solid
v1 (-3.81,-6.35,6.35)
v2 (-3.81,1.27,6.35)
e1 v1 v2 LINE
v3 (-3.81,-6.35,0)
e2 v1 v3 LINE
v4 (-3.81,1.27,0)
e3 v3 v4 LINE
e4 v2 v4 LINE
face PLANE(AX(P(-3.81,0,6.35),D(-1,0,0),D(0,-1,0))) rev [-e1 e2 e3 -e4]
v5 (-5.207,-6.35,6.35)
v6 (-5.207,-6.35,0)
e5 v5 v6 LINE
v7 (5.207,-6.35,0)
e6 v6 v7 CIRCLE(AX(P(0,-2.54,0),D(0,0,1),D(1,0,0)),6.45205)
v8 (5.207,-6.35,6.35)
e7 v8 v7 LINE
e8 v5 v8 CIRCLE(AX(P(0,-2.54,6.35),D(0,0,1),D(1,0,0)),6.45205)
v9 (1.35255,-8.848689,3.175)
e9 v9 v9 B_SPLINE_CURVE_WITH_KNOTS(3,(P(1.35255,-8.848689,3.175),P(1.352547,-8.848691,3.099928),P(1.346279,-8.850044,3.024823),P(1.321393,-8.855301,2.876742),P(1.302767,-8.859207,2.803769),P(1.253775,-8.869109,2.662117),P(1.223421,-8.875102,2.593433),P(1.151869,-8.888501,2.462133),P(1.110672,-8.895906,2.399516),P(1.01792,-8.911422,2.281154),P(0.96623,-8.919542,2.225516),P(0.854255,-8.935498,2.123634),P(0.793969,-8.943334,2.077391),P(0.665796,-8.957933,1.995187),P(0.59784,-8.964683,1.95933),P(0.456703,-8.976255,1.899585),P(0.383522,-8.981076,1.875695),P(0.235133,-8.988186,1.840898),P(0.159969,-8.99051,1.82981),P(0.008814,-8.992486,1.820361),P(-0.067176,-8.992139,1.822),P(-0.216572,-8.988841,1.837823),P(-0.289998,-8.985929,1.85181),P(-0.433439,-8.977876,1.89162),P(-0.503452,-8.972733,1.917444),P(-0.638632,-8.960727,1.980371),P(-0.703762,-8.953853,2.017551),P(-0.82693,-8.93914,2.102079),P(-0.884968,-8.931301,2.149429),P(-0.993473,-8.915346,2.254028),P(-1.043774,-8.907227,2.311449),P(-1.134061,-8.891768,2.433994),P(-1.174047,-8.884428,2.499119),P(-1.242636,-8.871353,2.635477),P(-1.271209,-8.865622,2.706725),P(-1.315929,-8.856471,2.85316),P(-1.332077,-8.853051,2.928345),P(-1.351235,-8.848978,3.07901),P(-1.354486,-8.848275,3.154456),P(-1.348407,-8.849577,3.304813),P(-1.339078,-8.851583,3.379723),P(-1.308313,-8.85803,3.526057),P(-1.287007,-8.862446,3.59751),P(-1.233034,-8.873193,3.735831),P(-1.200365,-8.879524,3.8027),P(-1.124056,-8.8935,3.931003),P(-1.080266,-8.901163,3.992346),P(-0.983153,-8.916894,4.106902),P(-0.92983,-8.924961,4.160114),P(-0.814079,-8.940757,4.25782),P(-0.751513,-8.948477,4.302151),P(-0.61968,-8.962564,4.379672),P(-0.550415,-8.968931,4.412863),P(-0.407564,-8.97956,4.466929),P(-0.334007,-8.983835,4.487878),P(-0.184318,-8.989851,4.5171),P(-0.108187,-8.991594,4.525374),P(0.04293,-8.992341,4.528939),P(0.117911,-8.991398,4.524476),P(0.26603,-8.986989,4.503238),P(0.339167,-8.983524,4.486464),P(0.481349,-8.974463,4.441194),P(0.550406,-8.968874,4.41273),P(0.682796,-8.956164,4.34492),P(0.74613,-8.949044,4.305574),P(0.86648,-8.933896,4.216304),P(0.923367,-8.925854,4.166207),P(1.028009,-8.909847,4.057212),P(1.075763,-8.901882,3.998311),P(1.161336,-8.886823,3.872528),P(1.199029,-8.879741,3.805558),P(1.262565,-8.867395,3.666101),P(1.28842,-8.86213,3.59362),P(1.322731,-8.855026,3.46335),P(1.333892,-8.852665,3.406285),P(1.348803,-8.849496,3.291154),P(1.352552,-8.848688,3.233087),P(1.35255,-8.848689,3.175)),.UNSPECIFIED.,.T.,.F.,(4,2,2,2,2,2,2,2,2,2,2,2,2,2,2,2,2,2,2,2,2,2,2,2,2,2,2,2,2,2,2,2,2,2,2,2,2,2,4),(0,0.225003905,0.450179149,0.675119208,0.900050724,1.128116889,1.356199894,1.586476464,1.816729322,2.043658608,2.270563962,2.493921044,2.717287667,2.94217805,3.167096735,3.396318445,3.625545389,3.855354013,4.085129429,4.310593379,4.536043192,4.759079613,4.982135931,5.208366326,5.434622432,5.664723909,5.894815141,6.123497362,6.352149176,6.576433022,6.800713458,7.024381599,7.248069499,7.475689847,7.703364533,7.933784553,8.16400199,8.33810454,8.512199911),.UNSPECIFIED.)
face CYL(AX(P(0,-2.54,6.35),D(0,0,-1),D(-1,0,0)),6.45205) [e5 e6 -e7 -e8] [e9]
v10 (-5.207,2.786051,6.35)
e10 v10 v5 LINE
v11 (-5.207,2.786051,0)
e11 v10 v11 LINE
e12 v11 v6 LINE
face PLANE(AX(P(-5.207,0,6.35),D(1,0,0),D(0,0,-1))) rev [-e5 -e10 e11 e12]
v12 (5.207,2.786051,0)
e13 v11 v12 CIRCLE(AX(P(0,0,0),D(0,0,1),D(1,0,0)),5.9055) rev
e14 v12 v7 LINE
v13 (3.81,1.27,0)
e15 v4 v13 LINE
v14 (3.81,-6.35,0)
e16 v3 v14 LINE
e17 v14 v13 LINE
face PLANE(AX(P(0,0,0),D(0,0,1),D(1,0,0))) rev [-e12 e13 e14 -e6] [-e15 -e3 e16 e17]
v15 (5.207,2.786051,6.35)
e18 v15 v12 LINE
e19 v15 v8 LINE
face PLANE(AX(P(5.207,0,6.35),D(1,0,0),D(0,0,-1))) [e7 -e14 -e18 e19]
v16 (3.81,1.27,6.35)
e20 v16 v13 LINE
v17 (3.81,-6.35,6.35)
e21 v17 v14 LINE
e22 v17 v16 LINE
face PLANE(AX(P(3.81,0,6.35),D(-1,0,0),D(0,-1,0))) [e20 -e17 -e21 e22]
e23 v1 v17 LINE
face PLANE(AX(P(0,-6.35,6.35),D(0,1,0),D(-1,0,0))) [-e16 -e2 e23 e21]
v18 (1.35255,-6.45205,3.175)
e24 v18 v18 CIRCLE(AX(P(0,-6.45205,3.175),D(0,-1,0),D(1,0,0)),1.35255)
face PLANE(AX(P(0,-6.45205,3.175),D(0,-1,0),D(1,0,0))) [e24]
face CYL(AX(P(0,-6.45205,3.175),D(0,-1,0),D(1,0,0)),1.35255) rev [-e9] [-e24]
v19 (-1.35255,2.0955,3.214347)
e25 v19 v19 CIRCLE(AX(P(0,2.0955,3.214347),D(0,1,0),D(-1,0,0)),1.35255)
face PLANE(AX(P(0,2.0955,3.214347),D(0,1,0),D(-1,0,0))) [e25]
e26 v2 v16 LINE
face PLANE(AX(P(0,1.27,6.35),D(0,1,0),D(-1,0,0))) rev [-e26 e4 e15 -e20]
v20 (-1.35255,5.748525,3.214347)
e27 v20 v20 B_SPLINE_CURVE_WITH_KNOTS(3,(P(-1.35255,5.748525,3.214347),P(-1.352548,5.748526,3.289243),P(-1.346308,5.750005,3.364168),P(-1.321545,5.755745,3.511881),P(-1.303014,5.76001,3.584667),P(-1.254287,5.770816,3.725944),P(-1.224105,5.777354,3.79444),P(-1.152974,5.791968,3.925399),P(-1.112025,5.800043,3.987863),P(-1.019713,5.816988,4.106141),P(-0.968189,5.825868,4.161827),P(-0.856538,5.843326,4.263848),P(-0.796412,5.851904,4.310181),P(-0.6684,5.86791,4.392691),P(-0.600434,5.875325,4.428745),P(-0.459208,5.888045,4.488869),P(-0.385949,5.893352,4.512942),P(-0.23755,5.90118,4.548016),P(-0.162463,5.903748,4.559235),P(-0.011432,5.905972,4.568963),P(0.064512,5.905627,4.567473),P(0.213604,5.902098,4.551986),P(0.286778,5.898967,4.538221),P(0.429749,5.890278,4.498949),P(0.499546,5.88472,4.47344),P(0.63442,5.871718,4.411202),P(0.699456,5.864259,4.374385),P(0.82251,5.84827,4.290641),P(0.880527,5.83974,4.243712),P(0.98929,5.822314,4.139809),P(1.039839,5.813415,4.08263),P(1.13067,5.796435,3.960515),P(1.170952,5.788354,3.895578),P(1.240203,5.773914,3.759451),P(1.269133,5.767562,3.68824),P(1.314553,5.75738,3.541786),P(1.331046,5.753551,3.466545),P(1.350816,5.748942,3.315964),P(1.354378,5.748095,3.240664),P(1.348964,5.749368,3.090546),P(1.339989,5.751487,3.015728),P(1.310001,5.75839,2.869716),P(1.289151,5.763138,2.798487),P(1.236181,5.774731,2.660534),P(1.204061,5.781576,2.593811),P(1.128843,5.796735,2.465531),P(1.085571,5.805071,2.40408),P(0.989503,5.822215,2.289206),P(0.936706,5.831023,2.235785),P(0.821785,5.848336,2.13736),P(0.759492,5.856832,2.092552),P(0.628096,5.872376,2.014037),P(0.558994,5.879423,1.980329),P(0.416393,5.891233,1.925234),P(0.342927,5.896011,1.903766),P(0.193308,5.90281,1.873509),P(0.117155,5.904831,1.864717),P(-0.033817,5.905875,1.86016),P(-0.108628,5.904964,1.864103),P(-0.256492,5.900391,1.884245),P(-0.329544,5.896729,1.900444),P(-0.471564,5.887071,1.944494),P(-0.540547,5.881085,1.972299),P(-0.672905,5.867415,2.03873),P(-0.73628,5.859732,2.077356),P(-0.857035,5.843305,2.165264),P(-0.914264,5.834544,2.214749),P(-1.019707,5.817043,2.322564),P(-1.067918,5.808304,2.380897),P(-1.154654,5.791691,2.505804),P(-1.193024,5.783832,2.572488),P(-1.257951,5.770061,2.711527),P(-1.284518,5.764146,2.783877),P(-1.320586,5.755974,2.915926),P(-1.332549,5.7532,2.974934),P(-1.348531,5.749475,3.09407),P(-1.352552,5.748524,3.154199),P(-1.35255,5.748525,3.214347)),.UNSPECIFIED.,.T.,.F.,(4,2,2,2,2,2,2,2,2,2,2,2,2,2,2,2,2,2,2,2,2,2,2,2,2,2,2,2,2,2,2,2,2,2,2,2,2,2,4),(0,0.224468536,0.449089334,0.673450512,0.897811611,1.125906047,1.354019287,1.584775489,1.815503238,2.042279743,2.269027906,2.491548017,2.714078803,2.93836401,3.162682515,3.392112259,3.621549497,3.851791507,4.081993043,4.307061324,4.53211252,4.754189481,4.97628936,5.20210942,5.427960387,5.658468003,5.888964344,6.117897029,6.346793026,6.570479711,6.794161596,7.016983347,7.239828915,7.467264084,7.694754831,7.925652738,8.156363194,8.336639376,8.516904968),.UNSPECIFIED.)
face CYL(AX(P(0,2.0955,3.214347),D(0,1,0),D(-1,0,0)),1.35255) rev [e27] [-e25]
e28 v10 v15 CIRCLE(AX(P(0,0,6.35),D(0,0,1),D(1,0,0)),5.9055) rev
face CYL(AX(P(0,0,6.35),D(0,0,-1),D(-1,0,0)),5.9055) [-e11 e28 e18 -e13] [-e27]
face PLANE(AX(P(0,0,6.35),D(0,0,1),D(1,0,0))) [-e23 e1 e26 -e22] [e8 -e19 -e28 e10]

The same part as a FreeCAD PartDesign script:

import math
import FreeCAD as App
import Part
import Sketcher
from FreeCAD import Vector
Q = App.Units.Quantity

doc = App.newDocument("Part")
body = doc.addObject("PartDesign::Body", "Body")

# Sketch on XY plane
sketch1 = body.newObject("Sketcher::SketchObject", "Sketch")
sketch1.AttachmentSupport = (doc.getObject("XY_Plane"), [""])
sketch1.MapMode = "FlatFace"
sketch1.addGeometry(Part.LineSegment(Vector(-5, 3, 0), Vector(-5, -6, 0)), False)
sketch1.addGeometry(Part.ArcOfCircle(Part.Circle(Vector(0, -3, 0), Vector(0, 0, 1), 6), math.radians(-144), math.radians(-36)), False)
sketch1.addGeometry(Part.LineSegment(Vector(5, -6, 0), Vector(5, 3, 0)), False)
sketch1.addGeometry(Part.ArcOfCircle(Part.Circle(Vector(0, 0, 0), Vector(0, 0, 1), 6), math.radians(28), math.radians(152)), False)
sketch1.addGeometry(Part.LineSegment(Vector(4, -6, 0), Vector(-4, -6, 0)), False)
sketch1.addGeometry(Part.LineSegment(Vector(-4, -6, 0), Vector(-4, 1, 0)), False)
sketch1.addGeometry(Part.LineSegment(Vector(-4, 1, 0), Vector(4, 1, 0)), False)
sketch1.addGeometry(Part.LineSegment(Vector(4, 1, 0), Vector(4, -6, 0)), False)
sketch1.addConstraint(Sketcher.Constraint("Coincident", 0, 2, 1, 1))
sketch1.addConstraint(Sketcher.Constraint("Coincident", 1, 2, 2, 1))
sketch1.addConstraint(Sketcher.Constraint("Coincident", 2, 2, 3, 1))
sketch1.addConstraint(Sketcher.Constraint("Coincident", 3, 2, 0, 1))
sketch1.addConstraint(Sketcher.Constraint("Coincident", 4, 2, 5, 1))
sketch1.addConstraint(Sketcher.Constraint("Coincident", 5, 2, 6, 1))
sketch1.addConstraint(Sketcher.Constraint("Coincident", 6, 2, 7, 1))
sketch1.addConstraint(Sketcher.Constraint("Coincident", 7, 2, 4, 1))
sketch1.addConstraint(Sketcher.Constraint("Vertical", 0))
sketch1.addConstraint(Sketcher.Constraint("Vertical", 2))
sketch1.addConstraint(Sketcher.Constraint("Horizontal", 4))
sketch1.addConstraint(Sketcher.Constraint("Vertical", 5))
sketch1.addConstraint(Sketcher.Constraint("Horizontal", 6))
sketch1.addConstraint(Sketcher.Constraint("Vertical", 7))
sketch1.addConstraint(Sketcher.Constraint("Coincident", 3, 3, -1, 1))
sketch1.addConstraint(Sketcher.Constraint("Symmetric", 0, 2, 1, 2, -2))
sketch1.addConstraint(Sketcher.Constraint("Horizontal", 1, 2, 4, 2))
sketch1.addConstraint(Sketcher.Constraint("Equal", 6, 5))
sketch1.addConstraint(Sketcher.Constraint("DistanceX", 4, 2, 4, 1, Q("0.3 in")))
sketch1.addConstraint(Sketcher.Constraint("DistanceY", 1, 3, -1, 1, Q("0.1 in")))
sketch1.addConstraint(Sketcher.Constraint("Radius", 3, Q("0.2325 in")))
sketch1.addConstraint(Sketcher.Constraint("DistanceY", 0, 2, -1, 1, Q("0.25 in")))
sketch1.addConstraint(Sketcher.Constraint("DistanceX", 4, 2, -1, 1, Q("0.15 in")))
sketch1.addConstraint(Sketcher.Constraint("DistanceX", 0, 2, 1, 2, Q("0.41 in")))
pad1 = body.newObject("PartDesign::Pad", "Pad")
pad1.Profile = sketch1
pad1.Length = Q("0.25 in")

# Sketch on XZ plane
sketch2 = body.newObject("Sketcher::SketchObject", "Sketch001")
sketch2.AttachmentSupport = (doc.getObject("XZ_Plane"), [""])
sketch2.MapMode = "FlatFace"
sketch2.AttachmentOffset = App.Placement(Vector(0, 0, -0.2325 * 25.4), App.Rotation())
sketch2.addGeometry(Part.Circle(Vector(0, 3.2, 0), Vector(0, 0, 1), 1.4), False)
sketch2.addConstraint(Sketcher.Constraint("PointOnObject", 0, 3, -2))
sketch2.addConstraint(Sketcher.Constraint("Diameter", 0, Q("0.1065 in")))
sketch2.addConstraint(Sketcher.Constraint("DistanceY", -1, 1, 0, 3, Q("3.214347 mm")))
pocket1 = body.newObject("PartDesign::Pocket", "Pocket")
pocket1.Profile = sketch2
pocket1.Length = Q("0.15 in")
pocket1.Reversed = True

# Sketch on XZ plane
sketch3 = body.newObject("Sketcher::SketchObject", "Sketch002")
sketch3.AttachmentSupport = (doc.getObject("XZ_Plane"), [""])
sketch3.MapMode = "FlatFace"
sketch3.AttachmentOffset = App.Placement(Vector(0, 0, 8.99205), App.Rotation())
sketch3.addGeometry(Part.Circle(Vector(0, 3.2, 0), Vector(0, 0, 1), 1.4), False)
sketch3.addConstraint(Sketcher.Constraint("PointOnObject", 0, 3, -2))
sketch3.addConstraint(Sketcher.Constraint("Diameter", 0, Q("0.1065 in")))
sketch3.addConstraint(Sketcher.Constraint("DistanceY", -1, 1, 0, 3, Q("0.125 in")))
pocket2 = body.newObject("PartDesign::Pocket", "Pocket001")
pocket2.Profile = sketch3
pocket2.Length = Q("0.1 in")

doc.recompute()
